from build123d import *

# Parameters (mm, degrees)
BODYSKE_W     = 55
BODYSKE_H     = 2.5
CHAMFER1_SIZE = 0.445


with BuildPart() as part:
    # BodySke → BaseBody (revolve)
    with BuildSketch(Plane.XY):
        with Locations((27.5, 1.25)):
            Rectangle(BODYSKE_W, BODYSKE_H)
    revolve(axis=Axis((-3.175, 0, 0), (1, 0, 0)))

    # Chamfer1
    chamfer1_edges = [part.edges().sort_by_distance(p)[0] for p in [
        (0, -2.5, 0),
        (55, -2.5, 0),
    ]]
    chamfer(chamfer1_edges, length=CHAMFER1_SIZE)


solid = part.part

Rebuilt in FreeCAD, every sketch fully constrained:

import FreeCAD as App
import Part
import Sketcher
from FreeCAD import Vector
Q = App.Units.Quantity


def edges_at(feature, points):
    """Names of the edges that pass closest to the given points."""
    edges = feature.Shape.Edges
    near = lambda p: min(range(len(edges)), key=lambda i: edges[i].distToShape(Part.Vertex(*p))[0])
    return sorted({f"Edge{near(p) + 1}" for p in points})

doc = App.newDocument("Part")
body = doc.addObject("PartDesign::Body", "Body")

# Sketch on XY plane
sketch1 = doc.addObject("Sketcher::SketchObject", "Sketch")
body.addObject(sketch1)
sketch1.AttachmentSupport = (doc.XY_Plane, [""])
sketch1.MapMode = "FlatFace"
sketch1.addGeometry([
    Part.LineSegment(Vector(0, 2.5, 0), Vector(0, 0, 0)),
    Part.LineSegment(Vector(0, 0, 0), Vector(55, 0, 0)),
    Part.LineSegment(Vector(55, 0, 0), Vector(55, 2.5, 0)),
    Part.LineSegment(Vector(55, 2.5, 0), Vector(0, 2.5, 0)),
], False)
sketch1.addConstraint([
    Sketcher.Constraint("Coincident", 0, 2, 1, 1),
    Sketcher.Constraint("Coincident", 1, 2, 2, 1),
    Sketcher.Constraint("Coincident", 2, 2, 3, 1),
    Sketcher.Constraint("Coincident", 3, 2, 0, 1),
    Sketcher.Constraint("Vertical", 0),
    Sketcher.Constraint("Horizontal", 1),
    Sketcher.Constraint("Vertical", 2),
    Sketcher.Constraint("Horizontal", 3),
    Sketcher.Constraint("Coincident", 0, 2, -1, 1),
    Sketcher.Constraint("DistanceX", 1, 1, 1, 2, Q("55 mm")),
    Sketcher.Constraint("DistanceY", 0, 2, 0, 1, Q("2.5 mm")),
])
revolution = doc.addObject("PartDesign::Revolution", "Revolution")
body.addObject(revolution)
revolution.Profile = sketch1
revolution.ReferenceAxis = (sketch1, ["H_Axis"])
revolution.Angle = 360
doc.recompute()

chamfer = doc.addObject("PartDesign::Chamfer", "Chamfer")
body.addObject(chamfer)
chamfer.Base = (revolution, edges_at(revolution, [(0, -2.5, 0), (55, -2.5, 0)]))
chamfer.Size = 0.445

doc.recompute()
